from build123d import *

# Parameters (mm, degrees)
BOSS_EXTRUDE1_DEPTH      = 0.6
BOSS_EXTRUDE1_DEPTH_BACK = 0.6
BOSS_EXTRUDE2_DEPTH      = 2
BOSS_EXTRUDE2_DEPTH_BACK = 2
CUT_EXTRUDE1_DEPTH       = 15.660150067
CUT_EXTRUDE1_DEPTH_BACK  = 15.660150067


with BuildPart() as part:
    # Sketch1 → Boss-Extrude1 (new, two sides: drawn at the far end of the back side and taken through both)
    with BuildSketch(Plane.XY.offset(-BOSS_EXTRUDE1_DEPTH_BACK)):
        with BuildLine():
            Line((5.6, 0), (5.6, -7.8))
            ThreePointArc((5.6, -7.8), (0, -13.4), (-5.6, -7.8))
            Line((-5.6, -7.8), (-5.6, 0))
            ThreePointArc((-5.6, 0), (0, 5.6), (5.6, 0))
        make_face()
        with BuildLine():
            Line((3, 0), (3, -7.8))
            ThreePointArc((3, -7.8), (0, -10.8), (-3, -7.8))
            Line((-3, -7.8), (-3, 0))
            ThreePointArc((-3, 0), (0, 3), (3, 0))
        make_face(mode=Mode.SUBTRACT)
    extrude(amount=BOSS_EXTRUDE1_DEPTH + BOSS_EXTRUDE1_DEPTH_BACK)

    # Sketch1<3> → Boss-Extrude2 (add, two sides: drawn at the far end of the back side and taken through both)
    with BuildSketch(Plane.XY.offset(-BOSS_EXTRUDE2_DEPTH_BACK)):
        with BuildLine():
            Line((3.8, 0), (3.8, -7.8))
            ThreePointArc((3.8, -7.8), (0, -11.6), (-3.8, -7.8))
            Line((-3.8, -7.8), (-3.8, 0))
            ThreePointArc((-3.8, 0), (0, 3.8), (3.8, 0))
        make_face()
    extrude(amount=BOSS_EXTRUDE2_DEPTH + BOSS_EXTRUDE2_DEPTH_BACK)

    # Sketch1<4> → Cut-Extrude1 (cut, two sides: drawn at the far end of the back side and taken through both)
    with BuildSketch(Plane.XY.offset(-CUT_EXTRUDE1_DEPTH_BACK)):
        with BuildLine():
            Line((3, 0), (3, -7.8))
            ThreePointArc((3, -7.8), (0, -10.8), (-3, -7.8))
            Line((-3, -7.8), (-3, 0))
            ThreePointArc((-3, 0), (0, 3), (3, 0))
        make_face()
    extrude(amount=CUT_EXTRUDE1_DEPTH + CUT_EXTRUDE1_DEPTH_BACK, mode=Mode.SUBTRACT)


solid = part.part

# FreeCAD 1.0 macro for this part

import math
import FreeCAD as App
import Part
import Sketcher
from FreeCAD import Vector
Q = App.Units.Quantity

doc = App.newDocument("Part")
params = doc.addObject("Spreadsheet::Sheet", "Params")
for row, (alias, value) in enumerate([
    ("sketch1_radius", "3 mm"),
    ("sketch1_radius2", "5.6 mm"),
    ("sketch1_height", "7.8 mm"),
    ("pad1_length", "0.6 mm"),
    ("pad1_length2", "0.6 mm"),
    ("sketch2_radius", "3.8 mm"),
    ("sketch2_height", "7.8 mm"),
    ("pad2_length", "2 mm"),
    ("pad2_length2", "2 mm"),
    ("sketch3_radius", "3 mm"),
    ("sketch3_height", "7.8 mm"),
], start=1):
    params.set(f"A{row}", alias)
    params.set(f"B{row}", "=" + value)
    params.setAlias(f"B{row}", alias)

body = doc.addObject("PartDesign::Body", "Body")

# Sketch on XY plane
sketch1 = body.newObject("Sketcher::SketchObject", "Sketch")
sketch1.AttachmentSupport = (doc.getObject("XY_Plane"), [""])
sketch1.MapMode = "FlatFace"
sketch1.addGeometry(Part.LineSegment(Vector(5.6, -7.8, 0), Vector(5.6, 0, 0)), False)
sketch1.addGeometry(Part.ArcOfCircle(Part.Circle(Vector(0, 0, 0), Vector(0, 0, 1), 5.6), math.radians(0), math.radians(180)), False)
sketch1.addGeometry(Part.LineSegment(Vector(-5.6, 0, 0), Vector(-5.6, -7.8, 0)), False)
sketch1.addGeometry(Part.ArcOfCircle(Part.Circle(Vector(0, -7.8, 0), Vector(0, 0, 1), 5.6), math.radians(180), math.radians(360)), False)
sketch1.addGeometry(Part.LineSegment(Vector(3, 0, 0), Vector(3, -7.8, 0)), False)
sketch1.addGeometry(Part.ArcOfCircle(Part.Circle(Vector(0, -7.8, 0), Vector(0, 0, 1), 3), math.radians(180), math.radians(360)), False)
sketch1.addGeometry(Part.LineSegment(Vector(-3, -7.8, 0), Vector(-3, 0, 0)), False)
sketch1.addGeometry(Part.ArcOfCircle(Part.Circle(Vector(0, 0, 0), Vector(0, 0, 1), 3), math.radians(0), math.radians(180)), False)
sketch1.addConstraint(Sketcher.Constraint("Tangent", 0, 2, 1, 1))
sketch1.addConstraint(Sketcher.Constraint("Tangent", 1, 2, 2, 1))
sketch1.addConstraint(Sketcher.Constraint("Tangent", 2, 2, 3, 1))
sketch1.addConstraint(Sketcher.Constraint("Tangent", 3, 2, 0, 1))
sketch1.addConstraint(Sketcher.Constraint("Tangent", 4, 2, 5, 2))
sketch1.addConstraint(Sketcher.Constraint("Tangent", 5, 1, 6, 1))
sketch1.addConstraint(Sketcher.Constraint("Tangent", 6, 2, 7, 2))
sketch1.addConstraint(Sketcher.Constraint("Tangent", 7, 1, 4, 1))
sketch1.addConstraint(Sketcher.Constraint("Vertical", 0))
sketch1.addConstraint(Sketcher.Constraint("Vertical", 2))
sketch1.addConstraint(Sketcher.Constraint("Vertical", 4))
sketch1.addConstraint(Sketcher.Constraint("Vertical", 6))
sketch1.addConstraint(Sketcher.Constraint("Coincident", 1, 3, -1, 1))
sketch1.addConstraint(Sketcher.Constraint("Coincident", 7, 3, -1, 1))
sketch1.addConstraint(Sketcher.Constraint("Horizontal", 5, 3, 2, 2))
sketch1.addConstraint(Sketcher.Constraint("Radius", 5, Q("3 mm")))
sketch1.addConstraint(Sketcher.Constraint("Radius", 1, Q("5.6 mm")))
sketch1.addConstraint(Sketcher.Constraint("DistanceY", 0, 1, 0, 2, Q("7.8 mm")))
sketch1.setExpression("Constraints[15]", "Params.sketch1_radius")
sketch1.setExpression("Constraints[16]", "Params.sketch1_radius2")
sketch1.setExpression("Constraints[17]", "Params.sketch1_height")
pad1 = body.newObject("PartDesign::Pad", "Pad")
pad1.Profile = sketch1
pad1.Type = "TwoLengths"
pad1.setExpression("Length", "Params.pad1_length")
pad1.setExpression("Length2", "Params.pad1_length2")

# Sketch on XY plane
sketch2 = body.newObject("Sketcher::SketchObject", "Sketch001")
sketch2.AttachmentSupport = (doc.getObject("XY_Plane"), [""])
sketch2.MapMode = "FlatFace"
sketch2.addGeometry(Part.LineSegment(Vector(3.8, -7.8, 0), Vector(3.8, 0, 0)), False)
sketch2.addGeometry(Part.ArcOfCircle(Part.Circle(Vector(0, 0, 0), Vector(0, 0, 1), 3.8), math.radians(0), math.radians(180)), False)
sketch2.addGeometry(Part.LineSegment(Vector(-3.8, 0, 0), Vector(-3.8, -7.8, 0)), False)
sketch2.addGeometry(Part.ArcOfCircle(Part.Circle(Vector(0, -7.8, 0), Vector(0, 0, 1), 3.8), math.radians(180), math.radians(360)), False)
sketch2.addConstraint(Sketcher.Constraint("Tangent", 0, 2, 1, 1))
sketch2.addConstraint(Sketcher.Constraint("Tangent", 1, 2, 2, 1))
sketch2.addConstraint(Sketcher.Constraint("Tangent", 2, 2, 3, 1))
sketch2.addConstraint(Sketcher.Constraint("Tangent", 3, 2, 0, 1))
sketch2.addConstraint(Sketcher.Constraint("Vertical", 0))
sketch2.addConstraint(Sketcher.Constraint("Vertical", 2))
sketch2.addConstraint(Sketcher.Constraint("Coincident", 1, 3, -1, 1))
sketch2.addConstraint(Sketcher.Constraint("Radius", 1, Q("3.8 mm")))
sketch2.addConstraint(Sketcher.Constraint("DistanceY", 0, 1, 0, 2, Q("7.8 mm")))
sketch2.setExpression("Constraints[7]", "Params.sketch2_radius")
sketch2.setExpression("Constraints[8]", "Params.sketch2_height")
pad2 = body.newObject("PartDesign::Pad", "Pad001")
pad2.Profile = sketch2
pad2.Type = "TwoLengths"
pad2.setExpression("Length", "Params.pad2_length")
pad2.setExpression("Length2", "Params.pad2_length2")

# Sketch on XY plane
sketch3 = body.newObject("Sketcher::SketchObject", "Sketch002")
sketch3.AttachmentSupport = (doc.getObject("XY_Plane"), [""])
sketch3.MapMode = "FlatFace"
sketch3.addGeometry(Part.LineSegment(Vector(3, -7.8, 0), Vector(3, 0, 0)), False)
sketch3.addGeometry(Part.ArcOfCircle(Part.Circle(Vector(0, 0, 0), Vector(0, 0, 1), 3), math.radians(0), math.radians(180)), False)
sketch3.addGeometry(Part.LineSegment(Vector(-3, 0, 0), Vector(-3, -7.8, 0)), False)
sketch3.addGeometry(Part.ArcOfCircle(Part.Circle(Vector(0, -7.8, 0), Vector(0, 0, 1), 3), math.radians(180), math.radians(360)), False)
sketch3.addConstraint(Sketcher.Constraint("Tangent", 0, 2, 1, 1))
sketch3.addConstraint(Sketcher.Constraint("Tangent", 1, 2, 2, 1))
sketch3.addConstraint(Sketcher.Constraint("Tangent", 2, 2, 3, 1))
sketch3.addConstraint(Sketcher.Constraint("Tangent", 3, 2, 0, 1))
sketch3.addConstraint(Sketcher.Constraint("Vertical", 0))
sketch3.addConstraint(Sketcher.Constraint("Vertical", 2))
sketch3.addConstraint(Sketcher.Constraint("Coincident", 1, 3, -1, 1))
sketch3.addConstraint(Sketcher.Constraint("Radius", 1, Q("3 mm")))
sketch3.addConstraint(Sketcher.Constraint("DistanceY", 0, 1, 0, 2, Q("7.8 mm")))
sketch3.setExpression("Constraints[7]", "Params.sketch3_radius")
sketch3.setExpression("Constraints[8]", "Params.sketch3_height")
pocket1 = body.newObject("PartDesign::Pocket", "Pocket")
pocket1.Profile = sketch3
pocket1.Type = "ThroughAll"
pocket1.Midplane = True

doc.recompute()
